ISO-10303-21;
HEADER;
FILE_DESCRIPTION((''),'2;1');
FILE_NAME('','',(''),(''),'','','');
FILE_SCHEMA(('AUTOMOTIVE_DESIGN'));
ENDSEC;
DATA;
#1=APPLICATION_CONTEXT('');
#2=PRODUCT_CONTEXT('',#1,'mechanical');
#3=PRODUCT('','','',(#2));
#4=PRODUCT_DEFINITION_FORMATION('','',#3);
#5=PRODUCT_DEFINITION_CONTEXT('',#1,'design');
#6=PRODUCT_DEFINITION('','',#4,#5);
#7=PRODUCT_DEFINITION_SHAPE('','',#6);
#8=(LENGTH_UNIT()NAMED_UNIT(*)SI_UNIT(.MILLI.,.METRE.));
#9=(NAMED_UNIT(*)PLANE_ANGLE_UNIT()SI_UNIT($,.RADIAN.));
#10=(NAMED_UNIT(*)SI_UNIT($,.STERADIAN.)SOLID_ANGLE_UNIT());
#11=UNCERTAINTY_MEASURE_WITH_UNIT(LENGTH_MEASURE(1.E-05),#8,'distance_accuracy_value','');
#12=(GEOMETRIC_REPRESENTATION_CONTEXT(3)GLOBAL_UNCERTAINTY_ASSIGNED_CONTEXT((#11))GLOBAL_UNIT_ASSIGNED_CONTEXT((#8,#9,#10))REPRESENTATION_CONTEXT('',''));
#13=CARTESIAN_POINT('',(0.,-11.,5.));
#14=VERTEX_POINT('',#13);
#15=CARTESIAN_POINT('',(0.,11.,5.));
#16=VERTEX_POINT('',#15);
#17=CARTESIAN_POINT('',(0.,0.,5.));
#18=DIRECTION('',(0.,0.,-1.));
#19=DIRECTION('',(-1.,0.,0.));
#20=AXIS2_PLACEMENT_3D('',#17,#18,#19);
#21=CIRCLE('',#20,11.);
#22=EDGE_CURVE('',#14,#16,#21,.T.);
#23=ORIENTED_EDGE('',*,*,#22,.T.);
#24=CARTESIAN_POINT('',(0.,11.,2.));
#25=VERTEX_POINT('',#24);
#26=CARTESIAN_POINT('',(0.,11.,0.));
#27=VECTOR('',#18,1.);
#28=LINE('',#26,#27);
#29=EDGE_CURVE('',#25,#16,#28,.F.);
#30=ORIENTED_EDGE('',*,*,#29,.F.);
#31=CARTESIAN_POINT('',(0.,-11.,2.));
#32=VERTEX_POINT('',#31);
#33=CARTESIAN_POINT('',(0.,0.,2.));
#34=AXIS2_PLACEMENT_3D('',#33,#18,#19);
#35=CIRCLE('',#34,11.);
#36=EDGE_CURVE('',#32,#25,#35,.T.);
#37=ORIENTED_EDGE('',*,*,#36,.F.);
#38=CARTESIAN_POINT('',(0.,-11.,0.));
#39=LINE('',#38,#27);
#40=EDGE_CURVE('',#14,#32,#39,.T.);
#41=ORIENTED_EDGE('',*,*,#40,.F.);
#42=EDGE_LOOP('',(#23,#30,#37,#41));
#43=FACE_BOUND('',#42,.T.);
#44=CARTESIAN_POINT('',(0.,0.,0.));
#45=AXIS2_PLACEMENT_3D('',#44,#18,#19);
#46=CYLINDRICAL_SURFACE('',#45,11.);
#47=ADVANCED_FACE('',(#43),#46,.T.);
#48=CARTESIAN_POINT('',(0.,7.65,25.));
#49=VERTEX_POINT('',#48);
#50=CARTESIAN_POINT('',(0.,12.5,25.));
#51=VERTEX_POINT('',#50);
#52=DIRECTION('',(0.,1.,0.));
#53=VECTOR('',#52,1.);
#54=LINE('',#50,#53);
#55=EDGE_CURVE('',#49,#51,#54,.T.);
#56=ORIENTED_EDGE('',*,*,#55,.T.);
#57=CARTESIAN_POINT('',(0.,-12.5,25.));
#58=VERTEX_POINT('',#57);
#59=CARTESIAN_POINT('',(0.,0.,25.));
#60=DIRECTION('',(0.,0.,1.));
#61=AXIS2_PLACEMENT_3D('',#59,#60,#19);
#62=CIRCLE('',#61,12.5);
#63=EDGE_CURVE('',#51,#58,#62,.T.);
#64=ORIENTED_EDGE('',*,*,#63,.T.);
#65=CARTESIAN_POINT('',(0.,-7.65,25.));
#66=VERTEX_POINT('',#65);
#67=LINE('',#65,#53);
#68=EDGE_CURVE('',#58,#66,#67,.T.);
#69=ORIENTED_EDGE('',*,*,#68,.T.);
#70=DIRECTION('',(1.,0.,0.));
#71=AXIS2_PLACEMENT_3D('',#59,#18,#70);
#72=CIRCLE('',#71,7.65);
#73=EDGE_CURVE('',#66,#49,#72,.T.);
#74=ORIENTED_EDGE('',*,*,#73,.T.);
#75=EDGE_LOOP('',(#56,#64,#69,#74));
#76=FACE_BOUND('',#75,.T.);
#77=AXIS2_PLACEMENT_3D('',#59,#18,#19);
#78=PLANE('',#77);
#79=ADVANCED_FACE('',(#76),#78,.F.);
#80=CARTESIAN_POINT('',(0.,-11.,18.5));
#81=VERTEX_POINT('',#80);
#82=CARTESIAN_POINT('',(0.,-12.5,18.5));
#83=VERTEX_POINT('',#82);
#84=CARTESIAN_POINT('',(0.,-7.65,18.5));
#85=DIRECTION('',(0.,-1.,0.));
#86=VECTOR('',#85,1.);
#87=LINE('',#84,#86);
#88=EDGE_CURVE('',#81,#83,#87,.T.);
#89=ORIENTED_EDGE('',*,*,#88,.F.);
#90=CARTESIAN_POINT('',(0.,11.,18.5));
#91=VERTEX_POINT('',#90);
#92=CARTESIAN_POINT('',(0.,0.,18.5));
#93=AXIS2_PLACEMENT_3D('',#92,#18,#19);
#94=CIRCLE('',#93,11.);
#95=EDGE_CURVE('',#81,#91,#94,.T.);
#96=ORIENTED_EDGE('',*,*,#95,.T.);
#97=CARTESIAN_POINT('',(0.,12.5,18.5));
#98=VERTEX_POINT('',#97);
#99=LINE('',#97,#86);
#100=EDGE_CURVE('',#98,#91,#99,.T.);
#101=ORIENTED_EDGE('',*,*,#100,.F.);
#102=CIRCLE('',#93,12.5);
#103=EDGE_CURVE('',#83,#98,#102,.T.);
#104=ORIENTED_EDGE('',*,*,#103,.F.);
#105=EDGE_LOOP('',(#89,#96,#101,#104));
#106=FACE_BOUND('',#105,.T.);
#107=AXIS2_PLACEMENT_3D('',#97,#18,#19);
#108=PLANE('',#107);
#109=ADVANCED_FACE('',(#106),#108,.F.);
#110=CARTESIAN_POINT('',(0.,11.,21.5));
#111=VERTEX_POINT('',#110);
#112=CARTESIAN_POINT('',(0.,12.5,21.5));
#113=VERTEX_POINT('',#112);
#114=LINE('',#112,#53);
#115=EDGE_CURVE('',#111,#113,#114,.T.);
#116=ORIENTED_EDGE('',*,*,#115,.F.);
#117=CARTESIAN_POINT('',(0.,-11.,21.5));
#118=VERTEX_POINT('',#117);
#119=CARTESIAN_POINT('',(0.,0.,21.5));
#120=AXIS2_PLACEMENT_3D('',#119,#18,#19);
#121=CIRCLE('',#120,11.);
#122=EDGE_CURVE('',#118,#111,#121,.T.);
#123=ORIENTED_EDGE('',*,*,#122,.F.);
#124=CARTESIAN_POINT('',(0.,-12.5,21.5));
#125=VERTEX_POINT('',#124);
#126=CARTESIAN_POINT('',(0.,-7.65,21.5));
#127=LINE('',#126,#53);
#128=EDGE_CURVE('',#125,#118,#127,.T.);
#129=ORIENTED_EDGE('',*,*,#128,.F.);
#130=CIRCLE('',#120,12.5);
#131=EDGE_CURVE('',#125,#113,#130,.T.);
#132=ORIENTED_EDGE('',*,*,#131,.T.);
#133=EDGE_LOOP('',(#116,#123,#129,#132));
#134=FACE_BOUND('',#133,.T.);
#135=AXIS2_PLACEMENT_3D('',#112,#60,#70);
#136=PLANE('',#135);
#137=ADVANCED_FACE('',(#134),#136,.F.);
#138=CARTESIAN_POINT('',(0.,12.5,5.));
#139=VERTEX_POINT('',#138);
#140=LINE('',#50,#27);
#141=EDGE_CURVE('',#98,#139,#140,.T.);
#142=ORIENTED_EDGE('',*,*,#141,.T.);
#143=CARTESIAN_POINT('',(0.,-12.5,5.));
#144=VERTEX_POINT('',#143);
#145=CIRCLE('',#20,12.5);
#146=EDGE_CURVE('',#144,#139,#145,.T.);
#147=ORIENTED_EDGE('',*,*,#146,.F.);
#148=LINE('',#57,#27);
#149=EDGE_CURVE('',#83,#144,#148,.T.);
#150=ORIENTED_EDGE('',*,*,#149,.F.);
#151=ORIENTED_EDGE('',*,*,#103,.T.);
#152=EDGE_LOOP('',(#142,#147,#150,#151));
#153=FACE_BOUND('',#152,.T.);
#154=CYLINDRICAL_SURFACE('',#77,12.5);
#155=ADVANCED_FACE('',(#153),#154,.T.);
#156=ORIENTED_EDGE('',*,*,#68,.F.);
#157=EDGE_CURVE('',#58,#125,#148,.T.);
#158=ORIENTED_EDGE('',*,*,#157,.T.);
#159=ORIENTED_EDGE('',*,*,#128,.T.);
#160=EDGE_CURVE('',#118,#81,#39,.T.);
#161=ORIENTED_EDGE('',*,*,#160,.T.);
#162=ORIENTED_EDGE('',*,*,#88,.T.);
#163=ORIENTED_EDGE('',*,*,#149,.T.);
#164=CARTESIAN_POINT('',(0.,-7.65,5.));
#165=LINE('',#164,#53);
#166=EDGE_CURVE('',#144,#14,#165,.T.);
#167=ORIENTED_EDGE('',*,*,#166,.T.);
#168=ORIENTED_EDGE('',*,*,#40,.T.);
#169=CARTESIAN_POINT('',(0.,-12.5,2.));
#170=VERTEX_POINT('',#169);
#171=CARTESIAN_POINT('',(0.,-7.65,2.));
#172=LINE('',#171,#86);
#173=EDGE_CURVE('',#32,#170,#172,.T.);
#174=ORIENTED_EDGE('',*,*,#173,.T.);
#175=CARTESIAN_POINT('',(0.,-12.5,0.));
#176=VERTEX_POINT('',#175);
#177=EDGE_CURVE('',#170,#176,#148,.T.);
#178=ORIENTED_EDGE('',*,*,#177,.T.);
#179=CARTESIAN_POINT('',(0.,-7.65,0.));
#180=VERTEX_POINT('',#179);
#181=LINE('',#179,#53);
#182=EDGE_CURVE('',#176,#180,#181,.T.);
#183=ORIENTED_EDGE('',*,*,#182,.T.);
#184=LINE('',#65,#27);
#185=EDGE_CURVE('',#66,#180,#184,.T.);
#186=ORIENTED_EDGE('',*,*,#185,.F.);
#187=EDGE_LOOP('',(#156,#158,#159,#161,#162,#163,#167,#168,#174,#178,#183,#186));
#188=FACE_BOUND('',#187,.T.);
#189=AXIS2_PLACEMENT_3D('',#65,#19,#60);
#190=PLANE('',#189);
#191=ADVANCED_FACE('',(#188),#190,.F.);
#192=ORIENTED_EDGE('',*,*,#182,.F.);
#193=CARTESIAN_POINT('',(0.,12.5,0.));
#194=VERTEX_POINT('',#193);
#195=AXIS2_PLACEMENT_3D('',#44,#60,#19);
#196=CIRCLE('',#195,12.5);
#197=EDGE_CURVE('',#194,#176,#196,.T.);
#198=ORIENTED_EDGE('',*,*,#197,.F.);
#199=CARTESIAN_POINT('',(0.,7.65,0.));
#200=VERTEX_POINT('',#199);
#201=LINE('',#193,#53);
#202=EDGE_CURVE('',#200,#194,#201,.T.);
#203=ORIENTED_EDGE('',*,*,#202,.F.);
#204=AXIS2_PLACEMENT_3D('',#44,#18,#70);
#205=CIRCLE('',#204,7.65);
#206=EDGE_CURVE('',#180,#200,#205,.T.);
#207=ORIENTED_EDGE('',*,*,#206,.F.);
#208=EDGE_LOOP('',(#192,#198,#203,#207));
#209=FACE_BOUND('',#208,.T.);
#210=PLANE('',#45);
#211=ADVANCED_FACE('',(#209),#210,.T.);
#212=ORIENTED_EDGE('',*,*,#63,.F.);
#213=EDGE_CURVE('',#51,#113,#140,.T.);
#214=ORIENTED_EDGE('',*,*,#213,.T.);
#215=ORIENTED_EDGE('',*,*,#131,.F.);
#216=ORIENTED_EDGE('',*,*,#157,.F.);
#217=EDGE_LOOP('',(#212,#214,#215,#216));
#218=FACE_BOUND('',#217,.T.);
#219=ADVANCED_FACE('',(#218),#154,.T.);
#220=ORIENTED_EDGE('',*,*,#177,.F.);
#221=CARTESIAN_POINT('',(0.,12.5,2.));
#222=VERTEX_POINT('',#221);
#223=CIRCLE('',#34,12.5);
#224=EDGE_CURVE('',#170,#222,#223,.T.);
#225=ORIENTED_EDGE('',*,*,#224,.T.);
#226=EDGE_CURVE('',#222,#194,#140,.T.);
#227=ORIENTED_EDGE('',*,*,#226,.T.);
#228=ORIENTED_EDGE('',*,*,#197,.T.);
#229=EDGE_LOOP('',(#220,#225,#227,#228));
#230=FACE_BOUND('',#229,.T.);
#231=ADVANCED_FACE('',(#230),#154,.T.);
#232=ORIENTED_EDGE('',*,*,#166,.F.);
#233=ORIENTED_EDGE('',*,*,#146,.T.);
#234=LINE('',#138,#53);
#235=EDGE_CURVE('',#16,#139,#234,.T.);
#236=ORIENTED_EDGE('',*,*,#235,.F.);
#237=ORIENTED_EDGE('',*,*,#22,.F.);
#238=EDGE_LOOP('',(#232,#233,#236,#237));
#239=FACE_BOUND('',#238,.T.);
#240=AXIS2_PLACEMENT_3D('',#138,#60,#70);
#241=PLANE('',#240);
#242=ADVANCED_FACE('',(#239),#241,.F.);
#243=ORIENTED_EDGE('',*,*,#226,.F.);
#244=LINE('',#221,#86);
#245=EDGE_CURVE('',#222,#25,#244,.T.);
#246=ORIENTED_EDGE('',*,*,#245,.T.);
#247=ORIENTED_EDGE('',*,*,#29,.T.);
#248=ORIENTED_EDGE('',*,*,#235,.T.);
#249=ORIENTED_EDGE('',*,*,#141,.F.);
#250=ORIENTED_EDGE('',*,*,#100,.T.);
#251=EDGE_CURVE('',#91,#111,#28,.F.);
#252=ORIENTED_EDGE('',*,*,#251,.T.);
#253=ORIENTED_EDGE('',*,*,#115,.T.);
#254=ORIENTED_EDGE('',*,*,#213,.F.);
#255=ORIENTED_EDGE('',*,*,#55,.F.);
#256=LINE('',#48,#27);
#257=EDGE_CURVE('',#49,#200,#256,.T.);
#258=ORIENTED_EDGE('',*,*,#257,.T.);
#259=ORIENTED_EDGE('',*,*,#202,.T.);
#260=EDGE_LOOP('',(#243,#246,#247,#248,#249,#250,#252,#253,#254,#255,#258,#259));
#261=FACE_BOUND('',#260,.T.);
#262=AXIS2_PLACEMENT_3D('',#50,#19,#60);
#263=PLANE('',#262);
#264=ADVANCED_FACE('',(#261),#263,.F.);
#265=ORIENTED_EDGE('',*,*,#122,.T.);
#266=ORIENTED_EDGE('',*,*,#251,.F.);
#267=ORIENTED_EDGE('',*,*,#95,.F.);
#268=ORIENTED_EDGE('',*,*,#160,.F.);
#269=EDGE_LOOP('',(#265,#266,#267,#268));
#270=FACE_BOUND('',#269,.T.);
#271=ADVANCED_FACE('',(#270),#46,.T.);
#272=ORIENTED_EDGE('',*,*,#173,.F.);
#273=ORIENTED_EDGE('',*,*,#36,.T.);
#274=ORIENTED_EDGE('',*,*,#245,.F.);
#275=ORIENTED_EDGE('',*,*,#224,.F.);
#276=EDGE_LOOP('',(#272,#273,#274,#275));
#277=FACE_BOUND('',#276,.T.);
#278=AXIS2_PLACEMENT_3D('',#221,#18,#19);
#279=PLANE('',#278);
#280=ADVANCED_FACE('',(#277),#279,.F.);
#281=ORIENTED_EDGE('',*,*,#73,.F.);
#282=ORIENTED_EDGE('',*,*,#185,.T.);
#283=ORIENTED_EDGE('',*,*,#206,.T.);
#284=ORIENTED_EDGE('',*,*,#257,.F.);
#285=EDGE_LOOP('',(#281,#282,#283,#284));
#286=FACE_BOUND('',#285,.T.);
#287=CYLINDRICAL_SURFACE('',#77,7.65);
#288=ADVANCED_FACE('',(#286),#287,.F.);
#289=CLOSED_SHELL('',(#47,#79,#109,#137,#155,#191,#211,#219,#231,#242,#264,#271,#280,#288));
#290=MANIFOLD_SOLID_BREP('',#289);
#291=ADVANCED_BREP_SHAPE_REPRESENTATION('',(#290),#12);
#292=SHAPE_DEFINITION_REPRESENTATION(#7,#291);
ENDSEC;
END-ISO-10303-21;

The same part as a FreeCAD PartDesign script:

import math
import FreeCAD as App
import Part
import Sketcher

V = App.Vector
Q = App.Units.Quantity


def add_polygon(sketch, points):
    """Adds a closed chain of lines whose ends are joined by coincident constraints."""
    first, n = sketch.GeometryCount, len(points)
    for a, b in zip(points, points[1:] + points[:1]):
        sketch.addGeometry(Part.LineSegment(App.Vector(*a, 0), App.Vector(*b, 0)), False)
    for i in range(n):
        sketch.addConstraint(Sketcher.Constraint("Coincident", first + i, 2, first + (i + 1) % n, 1))

doc = App.newDocument("Part")
body = doc.addObject("PartDesign::Body", "Body")

sketch1 = body.newObject("Sketcher::SketchObject", "Sketch")
sketch1.AttachmentSupport = (doc.getObject("XY_Plane"), [""])
sketch1.MapMode = "FlatFace"
sketch1.addGeometry(Part.LineSegment(V(0, 7.7, 0), V(0, 12.5, 0)), False)
sketch1.addGeometry(Part.ArcOfCircle(Part.Circle(V(0, 0, 0), V(0, 0, 1), 12.5), math.radians(90), math.radians(270)), False)
sketch1.addGeometry(Part.LineSegment(V(0, -12.5, 0), V(0, -7.7, 0)), False)
sketch1.addGeometry(Part.ArcOfCircle(Part.Circle(V(0, 0, 0), V(0, 0, 1), 7.7), math.radians(90), math.radians(270)), False)
sketch1.addConstraint(Sketcher.Constraint("Coincident", 0, 2, 1, 1))
sketch1.addConstraint(Sketcher.Constraint("Coincident", 1, 2, 2, 1))
sketch1.addConstraint(Sketcher.Constraint("Coincident", 2, 2, 3, 2))
sketch1.addConstraint(Sketcher.Constraint("Coincident", 3, 1, 0, 1))
sketch1.addConstraint(Sketcher.Constraint("Vertical", 0))
sketch1.addConstraint(Sketcher.Constraint("Vertical", 2))
sketch1.addConstraint(Sketcher.Constraint("Coincident", 1, 3, -1, 1))
sketch1.addConstraint(Sketcher.Constraint("Coincident", 3, 3, -1, 1))
sketch1.addConstraint(Sketcher.Constraint("PointOnObject", 0, 2, -2))
sketch1.addConstraint(Sketcher.Constraint("PointOnObject", 1, 2, -2))
sketch1.addConstraint(Sketcher.Constraint("Radius", 1, Q("12.5 mm")))
sketch1.addConstraint(Sketcher.Constraint("Radius", 3, Q("7.65 mm")))
pad1 = body.newObject("PartDesign::Pad", "Pad")
pad1.Profile = sketch1
pad1.Length = 25

sketch2 = body.newObject("Sketcher::SketchObject", "Sketch001")
sketch2.AttachmentSupport = (doc.getObject("YZ_Plane"), [""])
sketch2.MapMode = "FlatFace"
add_polygon(sketch2, [(12.5, 21.5), (11, 21.5), (11, 18.5), (12.5, 18.5)])
add_polygon(sketch2, [(12.5, 5), (11, 5), (11, 2), (12.5, 2)])
sketch2.addConstraint(Sketcher.Constraint("Horizontal", 0))
sketch2.addConstraint(Sketcher.Constraint("Vertical", 1))
sketch2.addConstraint(Sketcher.Constraint("Horizontal", 2))
sketch2.addConstraint(Sketcher.Constraint("Vertical", 3))
sketch2.addConstraint(Sketcher.Constraint("Horizontal", 4))
sketch2.addConstraint(Sketcher.Constraint("Vertical", 5))
sketch2.addConstraint(Sketcher.Constraint("Horizontal", 6))
sketch2.addConstraint(Sketcher.Constraint("Vertical", 7))
sketch2.addConstraint(Sketcher.Constraint("Vertical", 1, 2, 4, 2))
sketch2.addConstraint(Sketcher.Constraint("Vertical", 3, 2, 6, 2))
sketch2.addConstraint(Sketcher.Constraint("Equal", 3, 5))
sketch2.addConstraint(Sketcher.Constraint("DistanceY", 1, 2, 1, 1, Q("3 mm")))
sketch2.addConstraint(Sketcher.Constraint("DistanceX", 0, 2, 0, 1, Q("1.5 mm")))
sketch2.addConstraint(Sketcher.Constraint("DistanceX", -1, 1, 0, 2, Q("11 mm")))
sketch2.addConstraint(Sketcher.Constraint("DistanceY", -1, 1, 4, 2, Q("5 mm")))
sketch2.addConstraint(Sketcher.Constraint("DistanceY", -1, 1, 0, 2, Q("21.5 mm")))
groove = body.newObject("PartDesign::Groove", "Groove")
groove.Profile = sketch2
groove.ReferenceAxis = (sketch2, ["V_Axis"])
groove.Angle = 360

doc.recompute()
